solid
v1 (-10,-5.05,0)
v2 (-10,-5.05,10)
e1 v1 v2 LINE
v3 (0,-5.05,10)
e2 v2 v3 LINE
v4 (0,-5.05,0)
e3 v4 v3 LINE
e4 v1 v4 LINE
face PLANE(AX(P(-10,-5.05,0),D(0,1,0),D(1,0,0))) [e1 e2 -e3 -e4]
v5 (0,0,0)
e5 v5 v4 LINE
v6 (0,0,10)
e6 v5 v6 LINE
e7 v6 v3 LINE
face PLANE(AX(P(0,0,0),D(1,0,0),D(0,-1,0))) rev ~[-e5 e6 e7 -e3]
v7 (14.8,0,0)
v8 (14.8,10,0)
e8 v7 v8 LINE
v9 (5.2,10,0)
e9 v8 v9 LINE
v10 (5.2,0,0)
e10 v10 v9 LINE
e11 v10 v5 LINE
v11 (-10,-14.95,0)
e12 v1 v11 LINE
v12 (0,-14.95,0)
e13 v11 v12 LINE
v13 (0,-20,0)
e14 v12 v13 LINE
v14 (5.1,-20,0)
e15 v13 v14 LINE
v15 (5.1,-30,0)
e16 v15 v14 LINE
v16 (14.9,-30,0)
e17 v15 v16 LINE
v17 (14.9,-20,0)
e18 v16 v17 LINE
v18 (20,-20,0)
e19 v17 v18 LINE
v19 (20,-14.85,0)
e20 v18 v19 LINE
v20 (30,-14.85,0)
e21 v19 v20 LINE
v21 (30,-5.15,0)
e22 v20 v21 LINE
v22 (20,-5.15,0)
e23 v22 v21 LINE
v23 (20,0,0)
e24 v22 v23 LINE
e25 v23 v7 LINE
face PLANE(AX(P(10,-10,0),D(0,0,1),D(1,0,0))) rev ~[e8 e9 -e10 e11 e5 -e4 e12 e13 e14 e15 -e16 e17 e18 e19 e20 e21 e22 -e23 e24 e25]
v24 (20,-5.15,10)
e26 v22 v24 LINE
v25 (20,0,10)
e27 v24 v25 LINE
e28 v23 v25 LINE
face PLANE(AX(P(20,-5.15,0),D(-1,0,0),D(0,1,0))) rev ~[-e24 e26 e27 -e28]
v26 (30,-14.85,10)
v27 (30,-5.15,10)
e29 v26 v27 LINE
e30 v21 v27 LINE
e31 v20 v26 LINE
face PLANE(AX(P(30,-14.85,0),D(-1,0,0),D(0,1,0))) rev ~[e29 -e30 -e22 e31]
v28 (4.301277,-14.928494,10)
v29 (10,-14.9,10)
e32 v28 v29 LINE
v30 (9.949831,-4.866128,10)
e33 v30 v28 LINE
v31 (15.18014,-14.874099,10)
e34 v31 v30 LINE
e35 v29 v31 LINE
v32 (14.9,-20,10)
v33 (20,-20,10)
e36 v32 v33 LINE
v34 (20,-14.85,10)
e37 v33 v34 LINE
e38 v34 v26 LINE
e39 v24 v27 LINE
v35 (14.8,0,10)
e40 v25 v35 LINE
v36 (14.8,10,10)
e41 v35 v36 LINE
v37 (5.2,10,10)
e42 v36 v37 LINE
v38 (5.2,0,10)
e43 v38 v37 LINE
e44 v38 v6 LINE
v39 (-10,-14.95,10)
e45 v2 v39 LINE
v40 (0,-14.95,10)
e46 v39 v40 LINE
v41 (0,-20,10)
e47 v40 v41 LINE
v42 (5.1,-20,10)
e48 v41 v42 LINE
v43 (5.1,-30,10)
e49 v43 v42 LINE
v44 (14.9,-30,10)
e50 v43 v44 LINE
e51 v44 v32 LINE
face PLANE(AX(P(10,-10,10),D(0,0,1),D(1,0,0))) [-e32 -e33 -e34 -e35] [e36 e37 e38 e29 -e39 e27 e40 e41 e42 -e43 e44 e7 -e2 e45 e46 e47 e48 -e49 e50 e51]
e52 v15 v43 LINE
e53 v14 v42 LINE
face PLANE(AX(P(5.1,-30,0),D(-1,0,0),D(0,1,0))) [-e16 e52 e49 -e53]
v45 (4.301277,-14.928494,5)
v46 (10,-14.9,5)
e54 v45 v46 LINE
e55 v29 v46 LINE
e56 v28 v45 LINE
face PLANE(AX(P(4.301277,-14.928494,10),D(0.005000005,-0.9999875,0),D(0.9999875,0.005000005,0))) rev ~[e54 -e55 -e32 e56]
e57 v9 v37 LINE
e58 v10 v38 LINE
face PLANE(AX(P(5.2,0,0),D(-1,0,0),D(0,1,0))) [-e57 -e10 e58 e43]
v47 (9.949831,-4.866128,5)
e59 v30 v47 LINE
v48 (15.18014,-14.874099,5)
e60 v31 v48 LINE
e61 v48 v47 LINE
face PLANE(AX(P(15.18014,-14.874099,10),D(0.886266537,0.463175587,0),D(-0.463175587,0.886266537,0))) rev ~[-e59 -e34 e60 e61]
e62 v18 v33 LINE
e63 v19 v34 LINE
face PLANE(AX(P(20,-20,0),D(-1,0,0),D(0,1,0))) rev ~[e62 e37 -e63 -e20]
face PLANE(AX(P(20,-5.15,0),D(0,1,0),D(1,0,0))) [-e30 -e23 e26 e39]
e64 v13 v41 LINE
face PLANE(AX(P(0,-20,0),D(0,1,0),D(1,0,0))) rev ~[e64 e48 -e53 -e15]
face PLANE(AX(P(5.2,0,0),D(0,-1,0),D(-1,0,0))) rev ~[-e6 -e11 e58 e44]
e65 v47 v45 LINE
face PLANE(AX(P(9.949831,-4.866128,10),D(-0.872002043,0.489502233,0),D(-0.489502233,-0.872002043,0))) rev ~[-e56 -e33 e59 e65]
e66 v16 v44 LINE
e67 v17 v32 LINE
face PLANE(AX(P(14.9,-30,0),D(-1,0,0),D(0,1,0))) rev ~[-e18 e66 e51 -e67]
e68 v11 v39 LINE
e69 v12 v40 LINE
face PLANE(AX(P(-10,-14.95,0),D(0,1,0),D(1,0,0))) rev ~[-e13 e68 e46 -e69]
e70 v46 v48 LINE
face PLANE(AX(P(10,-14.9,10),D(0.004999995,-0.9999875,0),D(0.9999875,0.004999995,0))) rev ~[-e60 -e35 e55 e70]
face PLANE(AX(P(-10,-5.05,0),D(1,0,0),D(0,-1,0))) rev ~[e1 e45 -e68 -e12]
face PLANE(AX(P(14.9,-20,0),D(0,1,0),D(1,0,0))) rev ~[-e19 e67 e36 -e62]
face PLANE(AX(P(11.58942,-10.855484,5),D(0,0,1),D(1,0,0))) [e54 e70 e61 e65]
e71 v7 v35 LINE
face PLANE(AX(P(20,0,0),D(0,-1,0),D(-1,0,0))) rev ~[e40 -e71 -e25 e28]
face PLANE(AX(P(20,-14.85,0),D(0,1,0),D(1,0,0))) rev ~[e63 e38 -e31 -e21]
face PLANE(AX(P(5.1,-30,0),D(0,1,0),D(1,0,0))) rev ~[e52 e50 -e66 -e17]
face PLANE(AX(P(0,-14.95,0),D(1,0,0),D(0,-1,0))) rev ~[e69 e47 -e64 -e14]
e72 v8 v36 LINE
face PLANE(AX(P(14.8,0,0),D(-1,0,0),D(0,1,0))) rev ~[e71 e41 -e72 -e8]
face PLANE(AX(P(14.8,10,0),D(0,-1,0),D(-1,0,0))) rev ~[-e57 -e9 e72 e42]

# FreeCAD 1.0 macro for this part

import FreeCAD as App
import Part
import Sketcher

V = App.Vector
Q = App.Units.Quantity


def add_polygon(sketch, points):
    """Adds a closed chain of lines whose ends are joined by coincident constraints."""
    first, n = sketch.GeometryCount, len(points)
    for a, b in zip(points, points[1:] + points[:1]):
        sketch.addGeometry(Part.LineSegment(App.Vector(*a, 0), App.Vector(*b, 0)), False)
    for i in range(n):
        sketch.addConstraint(Sketcher.Constraint("Coincident", first + i, 2, first + (i + 1) % n, 1))

doc = App.newDocument("Part")
params = doc.addObject("Spreadsheet::Sheet", "Params")
for row, (alias, value) in enumerate([
    ("sketch1_width", "10 mm"),
    ("sketch1_width2", "5.1 mm"),
    ("sketch1_width3", "9.8 mm"),
    ("sketch1_width4", "5.2 mm"),
    ("sketch1_height", "9.9 mm"),
    ("pad1_length", "10 mm"),
    ("pocket1_length", "5 mm"),
], start=1):
    params.set(f"A{row}", alias)
    params.set(f"B{row}", "=" + value)
    params.setAlias(f"B{row}", alias)

body = doc.addObject("PartDesign::Body", "Body")

sketch1 = body.newObject("Sketcher::SketchObject", "Sketch")
sketch1.AttachmentSupport = (doc.getObject("XY_Plane"), [""])
sketch1.MapMode = "FlatFace"
add_polygon(sketch1, [(0, 0), (0, -5.05), (-10, -5.05), (-10, -14.95), (0, -14.95), (0, -20), (5.1, -20), (5.1, -30), (14.9, -30), (14.9, -20), (20, -20), (20, -14.85), (30, -14.85), (30, -5.15), (20, -5.15), (20, 0), (14.8, 0), (14.8, 10), (5.2, 10), (5.2, 0)])
sketch1.addConstraint([
    Sketcher.Constraint("Vertical", 0),
    Sketcher.Constraint("Horizontal", 1),
    Sketcher.Constraint("Vertical", 2),
    Sketcher.Constraint("Horizontal", 3),
    Sketcher.Constraint("Vertical", 4),
    Sketcher.Constraint("Horizontal", 5),
    Sketcher.Constraint("Vertical", 6),
    Sketcher.Constraint("Horizontal", 7),
    Sketcher.Constraint("Vertical", 8),
    Sketcher.Constraint("Horizontal", 9),
    Sketcher.Constraint("Vertical", 10),
    Sketcher.Constraint("Horizontal", 11),
    Sketcher.Constraint("Vertical", 12),
    Sketcher.Constraint("Horizontal", 13),
    Sketcher.Constraint("Vertical", 14),
    Sketcher.Constraint("Horizontal", 15),
    Sketcher.Constraint("Vertical", 16),
    Sketcher.Constraint("Horizontal", 17),
    Sketcher.Constraint("Vertical", 18),
    Sketcher.Constraint("Horizontal", 19),
    Sketcher.Constraint("Coincident", 19, 2, -1, 1),
    Sketcher.Constraint("PointOnObject", 3, 2, -2),
    Sketcher.Constraint("PointOnObject", 14, 2, -1),
    Sketcher.Constraint("Horizontal", 5, 2, 8, 2),
    Sketcher.Constraint("Vertical", 10, 2, 13, 2),
    Sketcher.Constraint("Equal", 5, 9),
    Sketcher.Constraint("Equal", 3, 11),
    Sketcher.Constraint("Equal", 15, 19),
    Sketcher.Constraint("Equal", 0, 4),
    Sketcher.Constraint("Equal", 13, 6),
    Sketcher.Constraint("Equal", 10, 14),
    Sketcher.Constraint("Equal", 8, 16),
    Sketcher.Constraint("DistanceX", 1, 2, 1, 1, Q("10 mm")),
    Sketcher.Constraint("DistanceX", 5, 1, 5, 2, Q("5.1 mm")),
    Sketcher.Constraint("DistanceX", 7, 1, 7, 2, Q("9.8 mm")),
    Sketcher.Constraint("DistanceX", 15, 2, 15, 1, Q("5.2 mm")),
    Sketcher.Constraint("DistanceY", 2, 2, 2, 1, Q("9.9 mm")),
    Sketcher.Constraint("DistanceY", 12, 1, 12, 2, Q("9.7 mm")),
    Sketcher.Constraint("DistanceY", 4, 2, -1, 1, Q("20 mm")),
])
sketch1.setExpression("Constraints[52]", "Params.sketch1_width")
sketch1.setExpression("Constraints[53]", "Params.sketch1_width2")
sketch1.setExpression("Constraints[54]", "Params.sketch1_width3")
sketch1.setExpression("Constraints[55]", "Params.sketch1_width4")
sketch1.setExpression("Constraints[56]", "Params.sketch1_height")
pad1 = body.newObject("PartDesign::Pad", "Pad")
pad1.Profile = sketch1
pad1.setExpression("Length", "Params.pad1_length")

sketch2 = body.newObject("Sketcher::SketchObject", "Sketch001")
sketch2.AttachmentSupport = (doc.getObject("XY_Plane"), [""])
sketch2.MapMode = "FlatFace"
sketch2.AttachmentOffset = App.Placement(V(0, 0, 10), App.Rotation())
add_polygon(sketch2, [(10, -14.9), (15.18014, -14.874099), (9.949831, -4.866128), (4.301277, -14.928494)])
sketch2.addConstraint([
    Sketcher.Constraint("Parallel", 0, 3),
    Sketcher.Constraint("DistanceX", -1, 1, 3, 2, Q("10 mm")),
    Sketcher.Constraint("DistanceY", 3, 2, -1, 1, Q("14.9 mm")),
    Sketcher.Constraint("DistanceY", 0, 2, -1, 1, Q("14.874099 mm")),
    Sketcher.Constraint("Distance", 1, Q("11.292281 mm")),
    Sketcher.Constraint("DistanceX", -1, 1, 0, 2, Q("15.18014 mm")),
    Sketcher.Constraint("DistanceX", -1, 1, 1, 2, Q("9.949831 mm")),
    Sketcher.Constraint("Distance", 2, Q("11.539384 mm")),
])
pocket1 = body.newObject("PartDesign::Pocket", "Pocket")
pocket1.Profile = sketch2
pocket1.setExpression("Length", "Params.pocket1_length")

doc.recompute()
